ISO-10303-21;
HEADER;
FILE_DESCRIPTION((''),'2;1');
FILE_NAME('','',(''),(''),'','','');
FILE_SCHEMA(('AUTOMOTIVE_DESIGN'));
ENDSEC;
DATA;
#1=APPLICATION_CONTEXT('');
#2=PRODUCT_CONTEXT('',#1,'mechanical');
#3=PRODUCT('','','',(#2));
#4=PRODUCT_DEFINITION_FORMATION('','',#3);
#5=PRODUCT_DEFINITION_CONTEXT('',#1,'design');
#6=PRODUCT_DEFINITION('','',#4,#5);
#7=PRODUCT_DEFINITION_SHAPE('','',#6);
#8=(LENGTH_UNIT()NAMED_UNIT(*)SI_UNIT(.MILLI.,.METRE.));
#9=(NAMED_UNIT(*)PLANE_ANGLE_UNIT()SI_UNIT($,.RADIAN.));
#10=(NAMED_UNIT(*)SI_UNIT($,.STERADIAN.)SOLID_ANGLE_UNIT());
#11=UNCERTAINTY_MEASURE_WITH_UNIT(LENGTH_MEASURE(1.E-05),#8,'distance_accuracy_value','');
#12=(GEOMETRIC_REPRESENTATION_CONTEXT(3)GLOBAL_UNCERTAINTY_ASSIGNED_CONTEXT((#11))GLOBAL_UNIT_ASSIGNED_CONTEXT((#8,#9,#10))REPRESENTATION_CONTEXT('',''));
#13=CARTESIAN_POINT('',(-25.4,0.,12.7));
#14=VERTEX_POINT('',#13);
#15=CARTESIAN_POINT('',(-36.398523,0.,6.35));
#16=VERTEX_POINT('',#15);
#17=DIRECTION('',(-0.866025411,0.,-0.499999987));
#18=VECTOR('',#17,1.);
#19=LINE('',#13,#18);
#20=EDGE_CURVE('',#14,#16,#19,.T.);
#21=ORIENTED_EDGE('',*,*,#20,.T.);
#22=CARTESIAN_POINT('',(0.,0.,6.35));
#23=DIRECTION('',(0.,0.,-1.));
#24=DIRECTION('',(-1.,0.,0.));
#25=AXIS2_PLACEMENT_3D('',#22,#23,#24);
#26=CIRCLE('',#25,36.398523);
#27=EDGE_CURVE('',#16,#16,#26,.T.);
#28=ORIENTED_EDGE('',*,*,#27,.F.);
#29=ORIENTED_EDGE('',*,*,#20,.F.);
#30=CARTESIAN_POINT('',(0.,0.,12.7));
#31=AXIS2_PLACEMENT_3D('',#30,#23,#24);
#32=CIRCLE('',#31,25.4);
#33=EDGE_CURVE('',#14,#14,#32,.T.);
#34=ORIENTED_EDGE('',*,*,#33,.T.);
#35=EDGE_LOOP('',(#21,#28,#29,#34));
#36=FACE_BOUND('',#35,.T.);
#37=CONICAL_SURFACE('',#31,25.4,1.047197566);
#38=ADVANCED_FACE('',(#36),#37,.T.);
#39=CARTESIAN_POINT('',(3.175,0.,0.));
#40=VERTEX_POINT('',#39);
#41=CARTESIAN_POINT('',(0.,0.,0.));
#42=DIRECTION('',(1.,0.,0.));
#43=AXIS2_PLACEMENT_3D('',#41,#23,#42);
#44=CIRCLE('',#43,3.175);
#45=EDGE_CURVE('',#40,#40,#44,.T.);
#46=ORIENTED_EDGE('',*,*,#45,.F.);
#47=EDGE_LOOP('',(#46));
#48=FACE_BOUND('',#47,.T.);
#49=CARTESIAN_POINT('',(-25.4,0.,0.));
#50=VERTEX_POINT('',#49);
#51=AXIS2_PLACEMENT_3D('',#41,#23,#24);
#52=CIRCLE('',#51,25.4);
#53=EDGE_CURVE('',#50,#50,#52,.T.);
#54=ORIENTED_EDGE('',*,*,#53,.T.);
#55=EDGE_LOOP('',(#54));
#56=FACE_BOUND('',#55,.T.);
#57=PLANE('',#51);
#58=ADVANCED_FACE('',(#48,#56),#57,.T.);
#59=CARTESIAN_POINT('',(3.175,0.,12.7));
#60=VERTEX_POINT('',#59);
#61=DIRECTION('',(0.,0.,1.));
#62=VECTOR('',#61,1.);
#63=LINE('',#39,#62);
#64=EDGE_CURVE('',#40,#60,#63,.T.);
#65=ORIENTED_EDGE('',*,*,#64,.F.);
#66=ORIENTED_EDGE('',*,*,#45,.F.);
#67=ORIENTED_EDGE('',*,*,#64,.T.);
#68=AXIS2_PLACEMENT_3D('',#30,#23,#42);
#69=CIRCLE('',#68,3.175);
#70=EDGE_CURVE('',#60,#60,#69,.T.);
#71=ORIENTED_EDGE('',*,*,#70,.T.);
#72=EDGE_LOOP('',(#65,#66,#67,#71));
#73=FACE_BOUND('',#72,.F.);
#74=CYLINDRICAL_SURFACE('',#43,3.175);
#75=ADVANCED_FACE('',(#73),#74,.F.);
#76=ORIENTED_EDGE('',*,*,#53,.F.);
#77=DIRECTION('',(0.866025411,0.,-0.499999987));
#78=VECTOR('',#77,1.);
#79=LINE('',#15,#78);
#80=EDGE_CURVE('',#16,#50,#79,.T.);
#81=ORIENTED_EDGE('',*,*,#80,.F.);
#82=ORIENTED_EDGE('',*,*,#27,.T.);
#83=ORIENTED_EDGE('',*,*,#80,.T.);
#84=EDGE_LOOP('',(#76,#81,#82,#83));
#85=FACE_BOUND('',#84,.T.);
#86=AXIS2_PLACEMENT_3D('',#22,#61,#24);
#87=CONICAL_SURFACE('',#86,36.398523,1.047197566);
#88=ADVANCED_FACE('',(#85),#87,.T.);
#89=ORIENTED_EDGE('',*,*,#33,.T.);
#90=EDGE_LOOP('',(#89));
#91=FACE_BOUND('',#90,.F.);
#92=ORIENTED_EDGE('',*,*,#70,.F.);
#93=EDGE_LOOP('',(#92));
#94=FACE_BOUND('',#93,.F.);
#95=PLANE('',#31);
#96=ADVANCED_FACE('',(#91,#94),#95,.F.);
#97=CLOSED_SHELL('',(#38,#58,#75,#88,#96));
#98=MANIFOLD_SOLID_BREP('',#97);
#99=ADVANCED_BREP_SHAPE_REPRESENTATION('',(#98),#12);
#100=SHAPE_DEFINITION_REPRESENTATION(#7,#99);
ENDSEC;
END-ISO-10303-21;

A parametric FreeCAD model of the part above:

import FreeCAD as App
import Part
import Sketcher
from FreeCAD import Vector
Q = App.Units.Quantity


def add_polygon(sketch, points):
    """Adds a closed chain of lines whose ends are joined by coincident constraints."""
    first, n = sketch.GeometryCount, len(points)
    for a, b in zip(points, points[1:] + points[:1]):
        sketch.addGeometry(Part.LineSegment(App.Vector(*a, 0), App.Vector(*b, 0)), False)
    for i in range(n):
        sketch.addConstraint(Sketcher.Constraint("Coincident", first + i, 2, first + (i + 1) % n, 1))

doc = App.newDocument("Part")
body = doc.addObject("PartDesign::Body", "Body")

sketch1 = body.newObject("Sketcher::SketchObject", "Sketch")
sketch1.AttachmentSupport = (doc.getObject("XZ_Plane"), [""])
sketch1.MapMode = "FlatFace"
add_polygon(sketch1, [(-25, 0), (0, 0), (0, 13), (-25, 13), (-36, 6)])
sketch1.addConstraint([
    Sketcher.Constraint("Horizontal", 0),
    Sketcher.Constraint("Vertical", 1),
    Sketcher.Constraint("Horizontal", 2),
    Sketcher.Constraint("Coincident", 0, 2, -1, 1),
    Sketcher.Constraint("Vertical", 2, 2, 4, 2),
    Sketcher.Constraint("Equal", 3, 4),
    Sketcher.Constraint("DistanceX", 0, 1, 0, 2, Q("1 in")),
    Sketcher.Constraint("DistanceY", 1, 1, 1, 2, Q("0.5 in")),
    Sketcher.Constraint("Angle", 3, Q("-150.000001 deg")),
])
revolution = body.newObject("PartDesign::Revolution", "Revolution")
revolution.Profile = sketch1
revolution.ReferenceAxis = (sketch1, ["V_Axis"])
revolution.Angle = 360

sketch2 = body.newObject("Sketcher::SketchObject", "Sketch001")
sketch2.AttachmentSupport = (doc.getObject("XY_Plane"), [""])
sketch2.MapMode = "FlatFace"
sketch2.addGeometry(Part.Circle(Vector(0, 0, 0), Vector(0, 0, 1), 3.2), False)
sketch2.addConstraint([
    Sketcher.Constraint("Coincident", 0, 3, -1, 1),
    Sketcher.Constraint("Diameter", 0, Q("0.25 in")),
])
pocket1 = body.newObject("PartDesign::Pocket", "Pocket")
pocket1.Profile = sketch2
pocket1.Length = Q("0.5 in")
pocket1.Reversed = True

doc.recompute()
